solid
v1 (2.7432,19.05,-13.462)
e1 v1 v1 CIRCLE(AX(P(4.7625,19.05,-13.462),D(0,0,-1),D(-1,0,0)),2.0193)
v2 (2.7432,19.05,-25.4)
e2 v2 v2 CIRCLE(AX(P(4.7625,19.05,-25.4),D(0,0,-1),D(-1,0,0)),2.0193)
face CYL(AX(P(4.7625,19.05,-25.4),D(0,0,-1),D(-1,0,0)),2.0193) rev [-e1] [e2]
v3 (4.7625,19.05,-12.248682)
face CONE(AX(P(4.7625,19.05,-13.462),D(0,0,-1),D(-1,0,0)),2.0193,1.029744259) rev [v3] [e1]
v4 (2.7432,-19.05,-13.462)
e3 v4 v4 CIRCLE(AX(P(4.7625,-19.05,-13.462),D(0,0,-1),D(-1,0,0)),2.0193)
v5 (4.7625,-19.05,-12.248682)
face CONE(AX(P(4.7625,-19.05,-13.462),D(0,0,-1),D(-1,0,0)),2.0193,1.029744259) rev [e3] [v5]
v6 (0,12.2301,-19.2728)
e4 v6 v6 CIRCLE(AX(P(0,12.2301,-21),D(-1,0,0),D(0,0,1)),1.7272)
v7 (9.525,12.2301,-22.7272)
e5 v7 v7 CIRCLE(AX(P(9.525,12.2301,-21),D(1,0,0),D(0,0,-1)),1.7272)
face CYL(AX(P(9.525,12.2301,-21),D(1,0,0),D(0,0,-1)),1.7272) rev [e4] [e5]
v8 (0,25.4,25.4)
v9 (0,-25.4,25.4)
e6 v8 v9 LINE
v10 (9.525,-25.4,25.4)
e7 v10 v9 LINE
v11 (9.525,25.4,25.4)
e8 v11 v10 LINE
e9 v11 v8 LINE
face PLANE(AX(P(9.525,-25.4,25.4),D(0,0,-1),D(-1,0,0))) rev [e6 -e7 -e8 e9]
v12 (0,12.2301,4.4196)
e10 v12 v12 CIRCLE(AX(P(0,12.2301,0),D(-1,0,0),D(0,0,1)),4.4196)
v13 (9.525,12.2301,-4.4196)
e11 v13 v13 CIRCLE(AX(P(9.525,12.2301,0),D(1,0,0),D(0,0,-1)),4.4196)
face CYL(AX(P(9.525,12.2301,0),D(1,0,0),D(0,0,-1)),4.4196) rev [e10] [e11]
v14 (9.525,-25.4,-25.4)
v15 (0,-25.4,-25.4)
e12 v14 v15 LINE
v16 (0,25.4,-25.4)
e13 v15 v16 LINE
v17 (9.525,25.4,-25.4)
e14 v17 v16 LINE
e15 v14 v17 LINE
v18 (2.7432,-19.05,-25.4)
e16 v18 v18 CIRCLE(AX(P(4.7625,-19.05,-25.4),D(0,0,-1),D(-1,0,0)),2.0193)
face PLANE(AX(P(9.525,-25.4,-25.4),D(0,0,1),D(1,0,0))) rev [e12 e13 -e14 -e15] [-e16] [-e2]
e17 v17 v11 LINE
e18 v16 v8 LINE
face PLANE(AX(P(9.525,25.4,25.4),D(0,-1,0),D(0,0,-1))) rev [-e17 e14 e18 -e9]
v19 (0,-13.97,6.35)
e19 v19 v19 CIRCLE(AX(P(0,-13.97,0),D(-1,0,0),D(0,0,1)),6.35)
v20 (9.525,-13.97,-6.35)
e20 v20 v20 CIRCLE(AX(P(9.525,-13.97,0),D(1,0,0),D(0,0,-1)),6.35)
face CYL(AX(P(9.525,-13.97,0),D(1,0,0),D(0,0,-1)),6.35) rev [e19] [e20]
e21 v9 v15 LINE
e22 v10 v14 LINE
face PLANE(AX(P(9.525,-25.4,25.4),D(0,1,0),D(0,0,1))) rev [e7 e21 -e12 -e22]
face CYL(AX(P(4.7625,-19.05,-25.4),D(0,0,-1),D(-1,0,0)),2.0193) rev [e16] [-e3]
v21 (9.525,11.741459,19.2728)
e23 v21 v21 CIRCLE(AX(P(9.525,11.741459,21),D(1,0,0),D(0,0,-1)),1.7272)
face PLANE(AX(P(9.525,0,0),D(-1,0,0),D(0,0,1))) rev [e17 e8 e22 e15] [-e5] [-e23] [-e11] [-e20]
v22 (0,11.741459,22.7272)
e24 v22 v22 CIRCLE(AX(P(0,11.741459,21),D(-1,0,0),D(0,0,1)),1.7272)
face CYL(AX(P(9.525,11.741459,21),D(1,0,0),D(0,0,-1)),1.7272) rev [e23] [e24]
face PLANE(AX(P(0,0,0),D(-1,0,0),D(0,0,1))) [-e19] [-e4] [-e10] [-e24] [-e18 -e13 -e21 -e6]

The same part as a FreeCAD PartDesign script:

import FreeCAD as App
import Part
import Sketcher
from FreeCAD import Vector
Q = App.Units.Quantity

doc = App.newDocument("Part")
body = doc.addObject("PartDesign::Body", "Body")

# Sketch on YZ plane
sketch1 = body.newObject("Sketcher::SketchObject", "Sketch")
sketch1.AttachmentSupport = (doc.getObject("YZ_Plane"), [""])
sketch1.MapMode = "FlatFace"
sketch1.addGeometry([
    Part.LineSegment(Vector(25, 25, 0), Vector(-25, 25, 0)),
    Part.LineSegment(Vector(-25, 25, 0), Vector(-25, -25, 0)),
    Part.LineSegment(Vector(-25, -25, 0), Vector(25, -25, 0)),
    Part.LineSegment(Vector(25, -25, 0), Vector(25, 25, 0)),
], False)
sketch1.addConstraint([
    Sketcher.Constraint("Coincident", 0, 2, 1, 1),
    Sketcher.Constraint("Coincident", 1, 2, 2, 1),
    Sketcher.Constraint("Coincident", 2, 2, 3, 1),
    Sketcher.Constraint("Coincident", 3, 2, 0, 1),
    Sketcher.Constraint("Horizontal", 0),
    Sketcher.Constraint("Vertical", 1),
    Sketcher.Constraint("Horizontal", 2),
    Sketcher.Constraint("Vertical", 3),
    Sketcher.Constraint("Symmetric", 0, 2, 2, 2, -1, 1),
    Sketcher.Constraint("Equal", 2, 1),
    Sketcher.Constraint("DistanceX", 0, 2, 0, 1, Q("2 in")),
])
pad1 = body.newObject("PartDesign::Pad", "Pad")
pad1.Profile = sketch1
pad1.Length = Q("0.375 in")

# Sketch on YZ plane
sketch2 = body.newObject("Sketcher::SketchObject", "Sketch001")
sketch2.AttachmentSupport = (doc.getObject("YZ_Plane"), [""])
sketch2.MapMode = "FlatFace"
sketch2.AttachmentOffset = App.Placement(Vector(0, 0, 0.375 * 25.4), App.Rotation())
sketch2.addGeometry(Part.Circle(Vector(-14, 0, 0), Vector(0, 0, 1), 6), False)
sketch2.addConstraint([
    Sketcher.Constraint("PointOnObject", 0, 3, -1),
    Sketcher.Constraint("Diameter", 0, Q("0.5 in")),
    Sketcher.Constraint("DistanceX", 0, 3, -1, 1, Q("0.55 in")),
])
doc.recompute()
hole = body.newObject("PartDesign::Hole", "Hole")
hole.Profile = sketch2
hole.ThreadType = "None"
hole.Diameter = Q("0.5 in")
hole.DepthType = "Dimension"
hole.Depth = Q("2.76 in")
hole.DrillPoint = "Angled"
hole.DrillPointAngle = 118

# Sketch on YZ plane
sketch3 = body.newObject("Sketcher::SketchObject", "Sketch002")
sketch3.AttachmentSupport = (doc.getObject("YZ_Plane"), [""])
sketch3.MapMode = "FlatFace"
sketch3.AttachmentOffset = App.Placement(Vector(0, 0, 0.375 * 25.4), App.Rotation())
sketch3.addGeometry(Part.Circle(Vector(12.2, 0, 0), Vector(0, 0, 1), 4.4), False)
sketch3.addConstraint([
    Sketcher.Constraint("PointOnObject", 0, 3, -1),
    Sketcher.Constraint("Diameter", 0, Q("0.348 in")),
    Sketcher.Constraint("DistanceX", -1, 1, 0, 3, Q("0.4815 in")),
])
doc.recompute()
hole2 = body.newObject("PartDesign::Hole", "Hole001")
hole2.Profile = sketch3
hole2.ThreadType = "None"
hole2.Diameter = Q("0.348 in")
hole2.DepthType = "Dimension"
hole2.Depth = Q("2.76 in")
hole2.DrillPoint = "Angled"
hole2.DrillPointAngle = 118

# Sketch on YZ plane
sketch4 = body.newObject("Sketcher::SketchObject", "Sketch003")
sketch4.AttachmentSupport = (doc.getObject("YZ_Plane"), [""])
sketch4.MapMode = "FlatFace"
sketch4.AttachmentOffset = App.Placement(Vector(0, 0, 0.375 * 25.4), App.Rotation())
sketch4.addGeometry([
    Part.Circle(Vector(12.2, -21, 0), Vector(0, 0, 1), 1.7),
    Part.Circle(Vector(11.7, 21, 0), Vector(0, 0, 1), 1.7),
], False)
sketch4.addConstraint([
    Sketcher.Constraint("Equal", 0, 1),
    Sketcher.Constraint("Diameter", 0, Q("0.136 in")),
    Sketcher.Constraint("DistanceX", -1, 1, 0, 3, Q("0.4815 in")),
    Sketcher.Constraint("DistanceY", 0, 3, -1, 1, 21.0),
    Sketcher.Constraint("DistanceY", -1, 1, 1, 3, 21.0),
    Sketcher.Constraint("DistanceX", -1, 1, 1, 3, 11.741459),
])
doc.recompute()
hole3 = body.newObject("PartDesign::Hole", "Hole002")
hole3.Profile = sketch4
hole3.ThreadType = "None"
hole3.Diameter = Q("0.136 in")
hole3.DepthType = "Dimension"
hole3.Depth = Q("2.76 in")
hole3.DrillPoint = "Angled"
hole3.DrillPointAngle = 118

# Sketch on XY plane
sketch5 = body.newObject("Sketcher::SketchObject", "Sketch004")
sketch5.AttachmentSupport = (doc.getObject("XY_Plane"), [""])
sketch5.MapMode = "FlatFace"
sketch5.AttachmentOffset = App.Placement(Vector(0, 0, -1 * 25.4), App.Rotation())
sketch5.addGeometry([
    Part.Circle(Vector(4.8, -19.1, 0), Vector(0, 0, 1), 2),
    Part.Circle(Vector(4.8, 19.1, 0), Vector(0, 0, 1), 2),
], False)
sketch5.addConstraint([
    Sketcher.Constraint("Equal", 0, 1),
    Sketcher.Constraint("Symmetric", 0, 3, 1, 3, -1),
    Sketcher.Constraint("Diameter", 0, Q("0.159 in")),
    Sketcher.Constraint("DistanceY", 0, 3, 1, 3, Q("1.5 in")),
    Sketcher.Constraint("DistanceX", -1, 1, 0, 3, Q("0.1875 in")),
])
doc.recompute()
hole4 = body.newObject("PartDesign::Hole", "Hole003")
hole4.Profile = sketch5
hole4.ThreadType = "None"
hole4.Diameter = Q("0.159 in")
hole4.DepthType = "Dimension"
hole4.Depth = Q("0.47 in")
hole4.DrillPoint = "Angled"
hole4.DrillPointAngle = 118
hole4.Reversed = True

doc.recompute()
